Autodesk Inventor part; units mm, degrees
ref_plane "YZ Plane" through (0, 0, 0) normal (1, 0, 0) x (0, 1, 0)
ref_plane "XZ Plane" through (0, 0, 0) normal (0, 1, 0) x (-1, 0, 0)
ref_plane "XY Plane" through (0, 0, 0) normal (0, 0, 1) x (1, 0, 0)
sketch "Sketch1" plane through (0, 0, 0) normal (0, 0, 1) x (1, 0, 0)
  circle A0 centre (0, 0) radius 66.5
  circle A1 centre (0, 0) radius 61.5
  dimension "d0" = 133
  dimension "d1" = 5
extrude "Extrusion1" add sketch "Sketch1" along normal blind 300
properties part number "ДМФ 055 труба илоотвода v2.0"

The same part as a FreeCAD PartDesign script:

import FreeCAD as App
import Part
import Sketcher
from FreeCAD import Vector
Q = App.Units.Quantity

doc = App.newDocument("Part")
params = doc.addObject("Spreadsheet::Sheet", "Params")
for row, (alias, value) in enumerate([
    ("sketch1_diameter", "133 mm"),
    ("sketch1_diameter2", "123 mm"),
    ("pad1_length", "300 mm"),
], start=1):
    params.set(f"A{row}", alias)
    params.set(f"B{row}", "=" + value)
    params.setAlias(f"B{row}", alias)

body = doc.addObject("PartDesign::Body", "Body")

sketch1 = doc.addObject("Sketcher::SketchObject", "Sketch")
body.addObject(sketch1)
sketch1.AttachmentSupport = (doc.XY_Plane, [""])
sketch1.MapMode = "FlatFace"
sketch1.addGeometry(Part.Circle(Vector(0, 0, 0), Vector(0, 0, 1), 66), False)
sketch1.addGeometry(Part.Circle(Vector(0, 0, 0), Vector(0, 0, 1), 62), False)
sketch1.addConstraint(Sketcher.Constraint("Coincident", 0, 3, -1, 1))
sketch1.addConstraint(Sketcher.Constraint("Coincident", 1, 3, -1, 1))
sketch1.addConstraint(Sketcher.Constraint("Diameter", 0, Q("133 mm")))
sketch1.addConstraint(Sketcher.Constraint("Diameter", 1, Q("123 mm")))
sketch1.setExpression("Constraints[2]", "Params.sketch1_diameter")
sketch1.setExpression("Constraints[3]", "Params.sketch1_diameter2")
pad1 = doc.addObject("PartDesign::Pad", "Pad")
body.addObject(pad1)
pad1.Profile = sketch1
pad1.setExpression("Length", "Params.pad1_length")

doc.recompute()
